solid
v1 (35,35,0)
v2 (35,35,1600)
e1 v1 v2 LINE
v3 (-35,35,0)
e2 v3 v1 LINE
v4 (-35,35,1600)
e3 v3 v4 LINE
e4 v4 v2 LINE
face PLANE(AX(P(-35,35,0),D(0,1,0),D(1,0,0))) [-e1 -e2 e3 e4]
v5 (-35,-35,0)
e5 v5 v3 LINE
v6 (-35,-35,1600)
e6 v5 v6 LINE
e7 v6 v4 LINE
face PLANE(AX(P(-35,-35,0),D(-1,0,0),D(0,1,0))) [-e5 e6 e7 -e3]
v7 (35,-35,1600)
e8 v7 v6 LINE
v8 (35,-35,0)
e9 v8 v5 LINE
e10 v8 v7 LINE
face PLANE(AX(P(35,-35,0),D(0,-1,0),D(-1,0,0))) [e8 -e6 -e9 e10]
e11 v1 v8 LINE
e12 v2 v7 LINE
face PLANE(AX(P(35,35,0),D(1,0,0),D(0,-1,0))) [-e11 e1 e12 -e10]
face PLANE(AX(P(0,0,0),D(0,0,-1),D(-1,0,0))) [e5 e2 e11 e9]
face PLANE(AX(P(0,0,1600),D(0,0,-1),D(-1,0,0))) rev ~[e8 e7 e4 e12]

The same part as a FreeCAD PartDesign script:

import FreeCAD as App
import Part
import Sketcher
from FreeCAD import Vector
Q = App.Units.Quantity


def add_polygon(sketch, points):
    """Adds a closed chain of lines whose ends are joined by coincident constraints."""
    first, n = sketch.GeometryCount, len(points)
    for a, b in zip(points, points[1:] + points[:1]):
        sketch.addGeometry(Part.LineSegment(App.Vector(*a, 0), App.Vector(*b, 0)), False)
    for i in range(n):
        sketch.addConstraint(Sketcher.Constraint("Coincident", first + i, 2, first + (i + 1) % n, 1))

doc = App.newDocument("Part")
body = doc.addObject("PartDesign::Body", "Body")

# Sketch on XY plane
sketch1 = body.newObject("Sketcher::SketchObject", "Sketch")
sketch1.AttachmentSupport = (doc.getObject("XY_Plane"), [""])
sketch1.MapMode = "FlatFace"
add_polygon(sketch1, [(35, -35), (-35, -35), (-35, 35), (35, 35)])  # lines 0-3
sketch1.addConstraint([
    Sketcher.Constraint("Horizontal", 0),
    Sketcher.Constraint("Vertical", 1),
    Sketcher.Constraint("Horizontal", 2),
    Sketcher.Constraint("Vertical", 3),
    Sketcher.Constraint("Symmetric", 0, 2, 2, 2, -1, 1),
    Sketcher.Constraint("Equal", 2, 1),
    Sketcher.Constraint("DistanceX", 0, 2, 0, 1, Q("70 mm")),
])
pad1 = body.newObject("PartDesign::Pad", "Pad")
pad1.Profile = sketch1
pad1.Length = 1600

doc.recompute()
